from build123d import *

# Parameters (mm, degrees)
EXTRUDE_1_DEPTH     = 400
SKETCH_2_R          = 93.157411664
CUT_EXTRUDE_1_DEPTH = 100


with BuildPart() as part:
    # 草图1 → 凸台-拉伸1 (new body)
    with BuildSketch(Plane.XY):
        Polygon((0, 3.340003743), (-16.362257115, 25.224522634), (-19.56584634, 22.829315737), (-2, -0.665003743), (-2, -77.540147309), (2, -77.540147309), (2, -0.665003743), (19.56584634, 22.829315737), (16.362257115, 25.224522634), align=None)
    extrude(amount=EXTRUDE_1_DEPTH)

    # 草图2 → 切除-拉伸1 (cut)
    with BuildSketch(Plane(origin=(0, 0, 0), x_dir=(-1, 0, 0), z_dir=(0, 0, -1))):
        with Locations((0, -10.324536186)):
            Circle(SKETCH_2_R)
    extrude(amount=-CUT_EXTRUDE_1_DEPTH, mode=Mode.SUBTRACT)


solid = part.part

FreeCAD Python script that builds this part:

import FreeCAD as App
import Part
import Sketcher
Q = App.Units.Quantity


def add_polygon(sketch, points):
    """Adds a closed chain of lines whose ends are joined by coincident constraints."""
    first, n = sketch.GeometryCount, len(points)
    for a, b in zip(points, points[1:] + points[:1]):
        sketch.addGeometry(Part.LineSegment(App.Vector(*a, 0), App.Vector(*b, 0)), False)
    for i in range(n):
        sketch.addConstraint(Sketcher.Constraint("Coincident", first + i, 2, first + (i + 1) % n, 1))

doc = App.newDocument("Part")
body = doc.addObject("PartDesign::Body", "Body")

# Sketch on XY plane
sketch1 = doc.addObject("Sketcher::SketchObject", "Sketch")
body.addObject(sketch1)
sketch1.AttachmentSupport = (doc.XY_Plane, [""])
sketch1.MapMode = "FlatFace"
add_polygon(sketch1, [(0, 3.3), (-16.4, 25.2), (-19.6, 22.8), (-2, -0.7), (-2, -77.5), (2, -77.5), (2, -0.7), (19.6, 22.8), (16.4, 25.2)])  # lines 0-8
sketch1.addConstraint([
    Sketcher.Constraint("Vertical", 3),
    Sketcher.Constraint("Horizontal", 4),
    Sketcher.Constraint("Vertical", 5),
    Sketcher.Constraint("Symmetric", 2, 2, 5, 2, -2),
    Sketcher.Constraint("Symmetric", 1, 2, 6, 2, -2),
    Sketcher.Constraint("Symmetric", 0, 2, 7, 2, -2),
    Sketcher.Constraint("PointOnObject", 8, 2, -2),
    Sketcher.Constraint("Perpendicular", 0, 1),
    Sketcher.Constraint("Perpendicular", 1, 2),
    Sketcher.Constraint("DistanceX", 4, 1, 4, 2, Q("4 mm")),
    Sketcher.Constraint("Distance", 1, Q("4 mm")),
    Sketcher.Constraint("Distance", 0, Q("27.325 mm")),
    Sketcher.Constraint("DistanceY", 3, 2, 3, 1, Q("76.875144 mm")),
    Sketcher.Constraint("DistanceX", 1, 2, 0, 2, Q("3.203589 mm")),
    Sketcher.Constraint("DistanceY", -1, 1, 0, 2, Q("25.224523 mm")),
])
pad1 = doc.addObject("PartDesign::Pad", "Pad")
body.addObject(pad1)
pad1.Profile = sketch1
pad1.Length = 400

# Sketch on XY plane
sketch2 = doc.addObject("Sketcher::SketchObject", "Sketch001")
body.addObject(sketch2)
sketch2.AttachmentSupport = (doc.XY_Plane, [""])
sketch2.MapMode = "FlatFace"
sketch2.addGeometry(Part.Circle(App.Vector(0, -10, 0), App.Vector(0, 0, 1), 93), False)
sketch2.addConstraint([
    Sketcher.Constraint("PointOnObject", 0, 3, -2),
    Sketcher.Constraint("Diameter", 0, Q("186.314823 mm")),
    Sketcher.Constraint("DistanceY", 0, 3, -1, 1, Q("10.324536 mm")),
])
pocket1 = doc.addObject("PartDesign::Pocket", "Pocket")
body.addObject(pocket1)
pocket1.Profile = sketch2
pocket1.Length = 100
pocket1.Reversed = True

doc.recompute()
